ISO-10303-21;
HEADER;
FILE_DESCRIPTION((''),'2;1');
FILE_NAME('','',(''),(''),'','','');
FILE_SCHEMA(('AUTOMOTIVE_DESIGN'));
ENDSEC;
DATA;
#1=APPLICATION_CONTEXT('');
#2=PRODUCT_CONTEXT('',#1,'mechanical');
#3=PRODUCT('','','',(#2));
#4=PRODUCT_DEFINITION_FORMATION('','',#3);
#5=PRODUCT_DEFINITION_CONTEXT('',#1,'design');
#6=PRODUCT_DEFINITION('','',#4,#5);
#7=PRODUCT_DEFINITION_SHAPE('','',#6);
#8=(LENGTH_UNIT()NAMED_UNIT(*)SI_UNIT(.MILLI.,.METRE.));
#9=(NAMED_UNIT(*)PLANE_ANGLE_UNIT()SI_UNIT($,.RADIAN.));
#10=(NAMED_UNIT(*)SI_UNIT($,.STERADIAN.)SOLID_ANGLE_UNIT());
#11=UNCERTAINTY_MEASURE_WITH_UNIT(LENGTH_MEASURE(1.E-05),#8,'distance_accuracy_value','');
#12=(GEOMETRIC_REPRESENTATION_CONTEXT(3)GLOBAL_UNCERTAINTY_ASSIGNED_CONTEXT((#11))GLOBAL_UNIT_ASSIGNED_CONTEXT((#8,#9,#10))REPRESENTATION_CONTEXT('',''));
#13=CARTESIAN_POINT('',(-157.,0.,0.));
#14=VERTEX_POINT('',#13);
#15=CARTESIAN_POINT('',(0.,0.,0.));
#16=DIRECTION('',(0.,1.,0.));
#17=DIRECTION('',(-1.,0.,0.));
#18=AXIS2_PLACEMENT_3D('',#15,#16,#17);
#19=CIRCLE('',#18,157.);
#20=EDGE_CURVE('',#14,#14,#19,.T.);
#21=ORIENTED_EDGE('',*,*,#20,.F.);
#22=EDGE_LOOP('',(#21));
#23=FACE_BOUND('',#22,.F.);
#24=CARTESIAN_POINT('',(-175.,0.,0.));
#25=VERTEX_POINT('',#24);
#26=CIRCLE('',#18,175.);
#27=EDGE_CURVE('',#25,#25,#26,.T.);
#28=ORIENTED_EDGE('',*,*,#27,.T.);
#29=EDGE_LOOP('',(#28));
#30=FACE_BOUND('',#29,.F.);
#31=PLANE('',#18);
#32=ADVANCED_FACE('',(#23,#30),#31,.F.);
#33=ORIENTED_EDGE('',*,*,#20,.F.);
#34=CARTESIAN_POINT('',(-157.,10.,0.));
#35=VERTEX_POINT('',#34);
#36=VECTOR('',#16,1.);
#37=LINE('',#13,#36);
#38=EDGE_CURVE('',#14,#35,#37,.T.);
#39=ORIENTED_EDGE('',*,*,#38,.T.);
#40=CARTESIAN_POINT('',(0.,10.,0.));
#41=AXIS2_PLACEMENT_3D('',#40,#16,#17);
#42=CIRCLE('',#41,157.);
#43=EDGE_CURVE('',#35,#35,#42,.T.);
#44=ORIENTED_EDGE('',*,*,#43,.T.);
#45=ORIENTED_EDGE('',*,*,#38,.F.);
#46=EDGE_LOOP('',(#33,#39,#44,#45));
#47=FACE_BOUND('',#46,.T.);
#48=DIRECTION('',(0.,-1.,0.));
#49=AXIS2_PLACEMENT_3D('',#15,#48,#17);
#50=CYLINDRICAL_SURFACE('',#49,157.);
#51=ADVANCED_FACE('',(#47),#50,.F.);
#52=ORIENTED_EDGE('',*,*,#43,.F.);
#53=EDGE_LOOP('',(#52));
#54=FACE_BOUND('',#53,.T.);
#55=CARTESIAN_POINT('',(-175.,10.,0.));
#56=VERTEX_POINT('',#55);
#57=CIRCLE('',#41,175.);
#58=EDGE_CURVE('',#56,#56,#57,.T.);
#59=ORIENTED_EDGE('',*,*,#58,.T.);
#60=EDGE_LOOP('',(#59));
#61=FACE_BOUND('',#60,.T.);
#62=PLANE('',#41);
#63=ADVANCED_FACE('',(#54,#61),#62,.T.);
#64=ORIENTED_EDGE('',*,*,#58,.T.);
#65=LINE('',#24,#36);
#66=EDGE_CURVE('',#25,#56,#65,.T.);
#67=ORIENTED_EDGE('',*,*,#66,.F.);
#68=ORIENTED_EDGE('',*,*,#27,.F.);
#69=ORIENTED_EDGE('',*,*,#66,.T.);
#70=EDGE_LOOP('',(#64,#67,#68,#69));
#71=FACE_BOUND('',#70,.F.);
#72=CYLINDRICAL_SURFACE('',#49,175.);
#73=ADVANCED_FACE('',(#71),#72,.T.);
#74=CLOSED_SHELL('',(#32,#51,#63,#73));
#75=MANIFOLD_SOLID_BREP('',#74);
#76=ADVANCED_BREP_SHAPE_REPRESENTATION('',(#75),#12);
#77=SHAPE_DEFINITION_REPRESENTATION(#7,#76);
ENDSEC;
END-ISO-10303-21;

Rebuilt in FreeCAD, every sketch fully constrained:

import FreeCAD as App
import Part
import Sketcher
Q = App.Units.Quantity

doc = App.newDocument("Part")
body = doc.addObject("PartDesign::Body", "Body")

# Sketch on XZ plane
sketch1 = body.newObject("Sketcher::SketchObject", "Sketch")
sketch1.AttachmentSupport = (doc.getObject("XZ_Plane"), [""])
sketch1.MapMode = "FlatFace"
sketch1.addGeometry(Part.Circle(App.Vector(0, 0, 0), App.Vector(0, 0, 1), 175), False)
sketch1.addConstraint(Sketcher.Constraint("Coincident", 0, 3, -1, 1))
sketch1.addConstraint(Sketcher.Constraint("Diameter", 0, Q("350 mm")))
pad1 = body.newObject("PartDesign::Pad", "Pad")
pad1.Profile = sketch1
pad1.Length = 10
pad1.Reversed = True

# Sketch on XZ plane
sketch2 = body.newObject("Sketcher::SketchObject", "Sketch001")
sketch2.AttachmentSupport = (doc.getObject("XZ_Plane"), [""])
sketch2.MapMode = "FlatFace"
sketch2.addGeometry(Part.Circle(App.Vector(0, 0, 0), App.Vector(0, 0, 1), 157), False)
sketch2.addConstraint(Sketcher.Constraint("Coincident", 0, 3, -1, 1))
sketch2.addConstraint(Sketcher.Constraint("Diameter", 0, Q("314 mm")))
pocket1 = body.newObject("PartDesign::Pocket", "Pocket")
pocket1.Profile = sketch2
pocket1.Length = 10

doc.recompute()
